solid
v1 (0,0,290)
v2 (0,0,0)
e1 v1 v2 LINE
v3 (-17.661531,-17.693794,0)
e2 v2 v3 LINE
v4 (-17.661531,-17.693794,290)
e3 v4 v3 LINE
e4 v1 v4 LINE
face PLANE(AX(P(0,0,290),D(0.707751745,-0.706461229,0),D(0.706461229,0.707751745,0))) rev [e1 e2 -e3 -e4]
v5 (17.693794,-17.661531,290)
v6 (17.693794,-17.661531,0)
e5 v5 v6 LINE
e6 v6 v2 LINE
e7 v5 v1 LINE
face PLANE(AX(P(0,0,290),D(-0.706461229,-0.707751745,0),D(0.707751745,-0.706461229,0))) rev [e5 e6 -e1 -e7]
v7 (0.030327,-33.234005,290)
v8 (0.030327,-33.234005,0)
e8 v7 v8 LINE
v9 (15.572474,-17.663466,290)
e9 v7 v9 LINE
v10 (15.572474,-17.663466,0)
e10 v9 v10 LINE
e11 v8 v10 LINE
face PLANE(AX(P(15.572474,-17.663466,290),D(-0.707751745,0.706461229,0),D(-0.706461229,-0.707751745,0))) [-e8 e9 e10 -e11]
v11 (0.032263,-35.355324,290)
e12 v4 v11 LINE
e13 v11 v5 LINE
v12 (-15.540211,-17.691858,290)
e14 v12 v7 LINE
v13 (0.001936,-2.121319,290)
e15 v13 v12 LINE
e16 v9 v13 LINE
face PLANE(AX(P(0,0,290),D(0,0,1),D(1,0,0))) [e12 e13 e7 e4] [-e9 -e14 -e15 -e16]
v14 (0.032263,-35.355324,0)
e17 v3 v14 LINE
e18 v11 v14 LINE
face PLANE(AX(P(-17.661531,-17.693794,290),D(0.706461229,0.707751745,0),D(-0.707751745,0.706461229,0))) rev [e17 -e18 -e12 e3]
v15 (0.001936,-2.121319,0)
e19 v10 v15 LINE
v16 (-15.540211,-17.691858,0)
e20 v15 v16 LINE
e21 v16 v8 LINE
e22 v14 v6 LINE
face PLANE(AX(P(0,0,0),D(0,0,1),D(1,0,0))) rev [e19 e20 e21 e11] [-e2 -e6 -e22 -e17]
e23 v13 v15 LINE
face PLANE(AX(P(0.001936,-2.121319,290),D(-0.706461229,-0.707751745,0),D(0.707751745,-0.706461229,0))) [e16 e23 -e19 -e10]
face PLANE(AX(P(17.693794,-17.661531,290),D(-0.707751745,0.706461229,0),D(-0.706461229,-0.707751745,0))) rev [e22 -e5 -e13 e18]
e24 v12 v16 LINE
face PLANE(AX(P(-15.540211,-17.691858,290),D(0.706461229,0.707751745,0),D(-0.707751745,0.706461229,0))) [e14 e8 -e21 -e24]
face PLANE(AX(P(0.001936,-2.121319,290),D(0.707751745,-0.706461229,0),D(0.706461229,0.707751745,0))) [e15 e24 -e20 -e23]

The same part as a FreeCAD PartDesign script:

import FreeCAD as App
import Part
import Sketcher

V = App.Vector

doc = App.newDocument("Part")
body = doc.addObject("PartDesign::Body", "Body")

# Sketch on XY plane
sketch1 = doc.addObject("Sketcher::SketchObject", "Sketch")
body.addObject(sketch1)
sketch1.AttachmentSupport = (doc.XY_Plane, [""])
sketch1.MapMode = "FlatFace"
sketch1.addGeometry([
    Part.LineSegment(V(17.693794, -17.661531, 0), V(0, 0, 0)),  # 0
    Part.LineSegment(V(0, 0, 0), V(-17.661531, -17.693794, 0)),  # 1
    Part.LineSegment(V(-17.661531, -17.693794, 0), V(0.032263, -35.355324, 0)),  # 2
    Part.LineSegment(V(0.032263, -35.355324, 0), V(17.693794, -17.661531, 0)),  # 3
    Part.LineSegment(V(0.001936, -2.121319, 0), V(15.572474, -17.663466, 0)),  # 4
    Part.LineSegment(V(15.572474, -17.663466, 0), V(0.030327, -33.234005, 0)),  # 5
    Part.LineSegment(V(0.030327, -33.234005, 0), V(-15.540211, -17.691858, 0)),  # 6
    Part.LineSegment(V(-15.540211, -17.691858, 0), V(0.001936, -2.121319, 0)),  # 7
], False)
sketch1.addConstraint([
    Sketcher.Constraint("Coincident", 0, 2, 1, 1),
    Sketcher.Constraint("Coincident", 1, 2, 2, 1),
    Sketcher.Constraint("Coincident", 2, 2, 3, 1),
    Sketcher.Constraint("Coincident", 3, 2, 0, 1),
    Sketcher.Constraint("Coincident", 4, 2, 5, 1),
    Sketcher.Constraint("Coincident", 5, 2, 6, 1),
    Sketcher.Constraint("Coincident", 6, 2, 7, 1),
    Sketcher.Constraint("Coincident", 7, 2, 4, 1),
    Sketcher.Constraint("Coincident", 0, 2, -1, 1),
    Sketcher.Constraint("Perpendicular", 0, 1),
    Sketcher.Constraint("Perpendicular", 1, 2),
    Sketcher.Constraint("Perpendicular", 2, 3),
    Sketcher.Constraint("Perpendicular", 3, 4),
    Sketcher.Constraint("Perpendicular", 4, 5),
    Sketcher.Constraint("Perpendicular", 5, 6),
    Sketcher.Constraint("Perpendicular", 6, 7),
    Sketcher.Constraint("Equal", 0, 1),
    Sketcher.Constraint("Equal", 4, 5),
    Sketcher.Constraint("Distance", 0, 25.0),
    Sketcher.Constraint("Distance", 4, 22.0),
    Sketcher.Constraint("DistanceX", 1, 2, -1, 1, 17.661531),
    Sketcher.Constraint("DistanceX", 6, 2, -1, 1, 15.540211),
    Sketcher.Constraint("DistanceY", 7, 2, -1, 1, 2.121319),
])
pad1 = doc.addObject("PartDesign::Pad", "Pad")
body.addObject(pad1)
pad1.Profile = sketch1
pad1.Length = 290

doc.recompute()
